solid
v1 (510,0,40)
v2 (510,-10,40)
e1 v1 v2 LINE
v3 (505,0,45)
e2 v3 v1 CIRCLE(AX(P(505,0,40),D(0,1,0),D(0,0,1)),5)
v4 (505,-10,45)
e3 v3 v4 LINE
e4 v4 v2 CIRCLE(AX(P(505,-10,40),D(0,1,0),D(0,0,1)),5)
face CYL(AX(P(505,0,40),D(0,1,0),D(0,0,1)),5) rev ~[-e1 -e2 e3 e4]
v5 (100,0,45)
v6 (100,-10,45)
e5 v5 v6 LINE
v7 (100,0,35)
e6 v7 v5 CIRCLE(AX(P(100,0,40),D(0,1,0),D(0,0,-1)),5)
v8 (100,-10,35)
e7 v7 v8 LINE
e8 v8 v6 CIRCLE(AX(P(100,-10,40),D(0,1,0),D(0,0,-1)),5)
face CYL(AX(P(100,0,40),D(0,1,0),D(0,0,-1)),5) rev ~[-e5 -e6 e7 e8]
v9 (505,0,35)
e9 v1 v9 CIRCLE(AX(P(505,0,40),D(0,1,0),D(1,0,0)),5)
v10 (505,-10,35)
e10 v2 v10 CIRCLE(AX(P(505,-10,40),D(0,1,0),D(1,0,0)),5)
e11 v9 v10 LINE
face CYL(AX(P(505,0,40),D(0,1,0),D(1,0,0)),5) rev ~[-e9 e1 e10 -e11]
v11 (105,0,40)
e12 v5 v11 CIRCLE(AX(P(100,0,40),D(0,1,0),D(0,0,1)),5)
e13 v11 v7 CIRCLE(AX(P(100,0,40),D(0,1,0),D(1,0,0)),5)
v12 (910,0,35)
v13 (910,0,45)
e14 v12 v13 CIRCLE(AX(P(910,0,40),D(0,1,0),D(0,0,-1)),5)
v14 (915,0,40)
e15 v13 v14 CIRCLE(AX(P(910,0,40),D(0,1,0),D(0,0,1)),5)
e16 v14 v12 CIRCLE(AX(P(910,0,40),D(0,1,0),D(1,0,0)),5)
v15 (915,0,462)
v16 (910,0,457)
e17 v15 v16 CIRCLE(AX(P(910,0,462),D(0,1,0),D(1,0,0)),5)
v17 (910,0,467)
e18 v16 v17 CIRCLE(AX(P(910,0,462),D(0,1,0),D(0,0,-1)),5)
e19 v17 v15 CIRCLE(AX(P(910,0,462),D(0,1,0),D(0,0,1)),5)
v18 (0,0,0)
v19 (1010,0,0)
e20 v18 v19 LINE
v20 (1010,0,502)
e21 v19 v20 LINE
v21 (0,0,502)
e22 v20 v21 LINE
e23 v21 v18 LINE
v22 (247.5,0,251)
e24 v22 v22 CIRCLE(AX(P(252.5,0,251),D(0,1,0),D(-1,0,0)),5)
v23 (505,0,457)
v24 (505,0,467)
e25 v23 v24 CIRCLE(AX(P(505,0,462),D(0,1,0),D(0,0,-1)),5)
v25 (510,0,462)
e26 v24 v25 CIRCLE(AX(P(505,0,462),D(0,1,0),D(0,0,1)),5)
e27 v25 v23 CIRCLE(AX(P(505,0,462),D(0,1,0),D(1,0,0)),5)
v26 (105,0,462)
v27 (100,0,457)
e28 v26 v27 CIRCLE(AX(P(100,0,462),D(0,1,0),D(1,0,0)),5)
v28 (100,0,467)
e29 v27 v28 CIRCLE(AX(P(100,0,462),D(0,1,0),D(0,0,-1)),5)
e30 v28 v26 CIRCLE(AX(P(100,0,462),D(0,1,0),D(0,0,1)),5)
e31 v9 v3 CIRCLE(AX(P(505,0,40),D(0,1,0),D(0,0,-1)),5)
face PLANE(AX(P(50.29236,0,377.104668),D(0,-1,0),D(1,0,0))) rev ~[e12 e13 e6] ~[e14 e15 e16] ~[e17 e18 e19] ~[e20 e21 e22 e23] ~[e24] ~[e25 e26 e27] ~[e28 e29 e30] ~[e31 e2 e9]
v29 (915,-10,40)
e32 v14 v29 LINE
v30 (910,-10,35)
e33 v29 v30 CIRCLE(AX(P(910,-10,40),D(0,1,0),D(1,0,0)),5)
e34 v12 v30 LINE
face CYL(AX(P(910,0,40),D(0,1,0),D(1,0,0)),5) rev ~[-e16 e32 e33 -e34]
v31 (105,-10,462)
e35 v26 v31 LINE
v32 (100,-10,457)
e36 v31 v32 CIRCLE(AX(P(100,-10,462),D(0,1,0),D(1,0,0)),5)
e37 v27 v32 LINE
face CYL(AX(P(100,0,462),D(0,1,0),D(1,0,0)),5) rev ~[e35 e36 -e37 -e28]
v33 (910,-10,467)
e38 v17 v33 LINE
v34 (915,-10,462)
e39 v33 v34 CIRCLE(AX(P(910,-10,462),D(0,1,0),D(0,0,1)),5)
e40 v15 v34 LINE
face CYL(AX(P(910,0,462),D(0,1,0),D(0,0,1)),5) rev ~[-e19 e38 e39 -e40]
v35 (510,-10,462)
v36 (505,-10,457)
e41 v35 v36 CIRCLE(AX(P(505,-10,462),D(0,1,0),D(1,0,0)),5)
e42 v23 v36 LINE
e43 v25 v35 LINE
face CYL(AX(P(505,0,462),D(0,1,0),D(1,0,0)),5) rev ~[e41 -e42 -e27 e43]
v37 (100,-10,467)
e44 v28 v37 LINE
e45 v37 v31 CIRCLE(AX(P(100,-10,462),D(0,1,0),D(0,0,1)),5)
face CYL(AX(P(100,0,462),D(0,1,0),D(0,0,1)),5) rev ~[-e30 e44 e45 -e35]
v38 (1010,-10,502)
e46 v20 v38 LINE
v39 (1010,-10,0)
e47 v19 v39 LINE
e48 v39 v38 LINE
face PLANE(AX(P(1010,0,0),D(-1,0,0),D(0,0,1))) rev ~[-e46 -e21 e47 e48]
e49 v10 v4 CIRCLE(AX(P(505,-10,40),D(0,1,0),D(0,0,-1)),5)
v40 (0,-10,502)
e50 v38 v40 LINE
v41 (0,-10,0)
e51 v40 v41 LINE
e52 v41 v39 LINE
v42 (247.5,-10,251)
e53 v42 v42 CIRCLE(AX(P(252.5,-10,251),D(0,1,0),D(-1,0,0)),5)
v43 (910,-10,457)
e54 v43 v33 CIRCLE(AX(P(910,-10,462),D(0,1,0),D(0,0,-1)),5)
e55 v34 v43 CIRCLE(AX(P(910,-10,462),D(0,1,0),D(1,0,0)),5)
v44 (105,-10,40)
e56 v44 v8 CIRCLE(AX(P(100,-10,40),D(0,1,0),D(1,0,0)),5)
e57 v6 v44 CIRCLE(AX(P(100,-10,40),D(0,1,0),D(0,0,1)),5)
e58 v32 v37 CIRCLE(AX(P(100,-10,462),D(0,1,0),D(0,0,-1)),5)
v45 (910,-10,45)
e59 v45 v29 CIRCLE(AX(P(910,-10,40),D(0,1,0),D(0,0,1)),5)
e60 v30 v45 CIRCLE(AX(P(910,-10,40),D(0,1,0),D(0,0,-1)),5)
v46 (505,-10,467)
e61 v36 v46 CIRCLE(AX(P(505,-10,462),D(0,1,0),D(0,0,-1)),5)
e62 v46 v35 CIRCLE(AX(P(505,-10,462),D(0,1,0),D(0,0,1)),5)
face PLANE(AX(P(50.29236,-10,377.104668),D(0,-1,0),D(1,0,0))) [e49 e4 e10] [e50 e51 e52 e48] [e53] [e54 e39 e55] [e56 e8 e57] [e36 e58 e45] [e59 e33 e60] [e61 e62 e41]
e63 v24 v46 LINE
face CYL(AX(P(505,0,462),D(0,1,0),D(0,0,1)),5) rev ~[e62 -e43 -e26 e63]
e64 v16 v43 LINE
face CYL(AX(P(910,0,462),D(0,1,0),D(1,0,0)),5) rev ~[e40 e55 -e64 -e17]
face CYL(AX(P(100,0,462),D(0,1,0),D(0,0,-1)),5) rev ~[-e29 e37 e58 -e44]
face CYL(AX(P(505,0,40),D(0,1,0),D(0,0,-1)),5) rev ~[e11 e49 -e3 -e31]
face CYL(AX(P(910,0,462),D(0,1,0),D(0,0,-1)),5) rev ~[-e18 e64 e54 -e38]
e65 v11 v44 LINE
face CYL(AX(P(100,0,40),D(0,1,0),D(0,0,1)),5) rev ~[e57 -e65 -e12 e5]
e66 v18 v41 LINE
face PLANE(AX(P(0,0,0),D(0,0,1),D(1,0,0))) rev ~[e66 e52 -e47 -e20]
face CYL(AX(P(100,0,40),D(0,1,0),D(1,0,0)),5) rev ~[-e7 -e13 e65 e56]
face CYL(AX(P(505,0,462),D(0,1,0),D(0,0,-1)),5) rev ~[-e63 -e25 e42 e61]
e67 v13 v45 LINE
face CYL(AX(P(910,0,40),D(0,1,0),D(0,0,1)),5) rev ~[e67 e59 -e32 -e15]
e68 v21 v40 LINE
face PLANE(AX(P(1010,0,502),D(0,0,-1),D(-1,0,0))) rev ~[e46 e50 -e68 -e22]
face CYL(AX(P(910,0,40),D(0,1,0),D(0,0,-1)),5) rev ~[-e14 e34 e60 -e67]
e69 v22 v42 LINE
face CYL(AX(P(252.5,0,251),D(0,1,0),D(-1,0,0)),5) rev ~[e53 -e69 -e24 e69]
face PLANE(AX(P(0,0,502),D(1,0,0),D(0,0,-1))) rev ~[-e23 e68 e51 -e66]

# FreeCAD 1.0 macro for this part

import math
import FreeCAD as App
import Part
import Sketcher
Q = App.Units.Quantity

doc = App.newDocument("Part")
body = doc.addObject("PartDesign::Body", "Body")

# Sketch on XZ plane
sketch1 = doc.addObject("Sketcher::SketchObject", "Sketch")
body.addObject(sketch1)
sketch1.AttachmentSupport = (doc.XZ_Plane, [""])
sketch1.MapMode = "FlatFace"
sketch1.addGeometry(Part.LineSegment(App.Vector(0, 0, 0), App.Vector(1010, 0, 0)), False)
sketch1.addGeometry(Part.LineSegment(App.Vector(1010, 0, 0), App.Vector(1010, 502, 0)), False)
sketch1.addGeometry(Part.LineSegment(App.Vector(1010, 502, 0), App.Vector(0, 502, 0)), False)
sketch1.addGeometry(Part.LineSegment(App.Vector(0, 502, 0), App.Vector(0, 0, 0)), False)
sketch1.addGeometry(Part.ArcOfCircle(Part.Circle(App.Vector(505, 462, 0), App.Vector(0, 0, 1), 5), math.radians(90), math.radians(270)), False)
sketch1.addGeometry(Part.ArcOfCircle(Part.Circle(App.Vector(505, 462, 0), App.Vector(0, 0, 1), 5), math.radians(0), math.radians(90)), False)
sketch1.addGeometry(Part.ArcOfCircle(Part.Circle(App.Vector(505, 462, 0), App.Vector(0, 0, 1), 5), math.radians(-90), math.radians(0)), False)
sketch1.addGeometry(Part.ArcOfCircle(Part.Circle(App.Vector(910, 462, 0), App.Vector(0, 0, 1), 5), math.radians(-90), math.radians(0)), False)
sketch1.addGeometry(Part.ArcOfCircle(Part.Circle(App.Vector(910, 462, 0), App.Vector(0, 0, 1), 5), math.radians(90), math.radians(270)), False)
sketch1.addGeometry(Part.ArcOfCircle(Part.Circle(App.Vector(910, 462, 0), App.Vector(0, 0, 1), 5), math.radians(0), math.radians(90)), False)
sketch1.addGeometry(Part.ArcOfCircle(Part.Circle(App.Vector(100, 40, 0), App.Vector(0, 0, 1), 5), math.radians(90), math.radians(270)), False)
sketch1.addGeometry(Part.ArcOfCircle(Part.Circle(App.Vector(100, 40, 0), App.Vector(0, 0, 1), 5), math.radians(0), math.radians(90)), False)
sketch1.addGeometry(Part.ArcOfCircle(Part.Circle(App.Vector(100, 40, 0), App.Vector(0, 0, 1), 5), math.radians(-90), math.radians(0)), False)
sketch1.addGeometry(Part.ArcOfCircle(Part.Circle(App.Vector(505, 40, 0), App.Vector(0, 0, 1), 5), math.radians(90), math.radians(270)), False)
sketch1.addGeometry(Part.ArcOfCircle(Part.Circle(App.Vector(505, 40, 0), App.Vector(0, 0, 1), 5), math.radians(0), math.radians(90)), False)
sketch1.addGeometry(Part.ArcOfCircle(Part.Circle(App.Vector(505, 40, 0), App.Vector(0, 0, 1), 5), math.radians(-90), math.radians(0)), False)
sketch1.addGeometry(Part.ArcOfCircle(Part.Circle(App.Vector(910, 40, 0), App.Vector(0, 0, 1), 5), math.radians(-90), math.radians(0)), False)
sketch1.addGeometry(Part.ArcOfCircle(Part.Circle(App.Vector(910, 40, 0), App.Vector(0, 0, 1), 5), math.radians(90), math.radians(270)), False)
sketch1.addGeometry(Part.ArcOfCircle(Part.Circle(App.Vector(910, 40, 0), App.Vector(0, 0, 1), 5), math.radians(0), math.radians(90)), False)
sketch1.addGeometry(Part.Circle(App.Vector(252.5, 251, 0), App.Vector(0, 0, 1), 5), False)
sketch1.addGeometry(Part.ArcOfCircle(Part.Circle(App.Vector(100, 462, 0), App.Vector(0, 0, 1), 5), math.radians(90), math.radians(270)), False)
sketch1.addGeometry(Part.ArcOfCircle(Part.Circle(App.Vector(100, 462, 0), App.Vector(0, 0, 1), 5), math.radians(0), math.radians(90)), False)
sketch1.addGeometry(Part.ArcOfCircle(Part.Circle(App.Vector(100, 462, 0), App.Vector(0, 0, 1), 5), math.radians(-90), math.radians(0)), False)
sketch1.addConstraint(Sketcher.Constraint("Coincident", 0, 2, 1, 1))
sketch1.addConstraint(Sketcher.Constraint("Coincident", 1, 2, 2, 1))
sketch1.addConstraint(Sketcher.Constraint("Coincident", 2, 2, 3, 1))
sketch1.addConstraint(Sketcher.Constraint("Coincident", 3, 2, 0, 1))
sketch1.addConstraint(Sketcher.Constraint("Tangent", 4, 1, 5, 2))
sketch1.addConstraint(Sketcher.Constraint("Tangent", 5, 1, 6, 2))
sketch1.addConstraint(Sketcher.Constraint("Tangent", 6, 1, 4, 2))
sketch1.addConstraint(Sketcher.Constraint("Tangent", 7, 1, 8, 2))
sketch1.addConstraint(Sketcher.Constraint("Tangent", 8, 1, 9, 2))
sketch1.addConstraint(Sketcher.Constraint("Tangent", 9, 1, 7, 2))
sketch1.addConstraint(Sketcher.Constraint("Tangent", 10, 1, 11, 2))
sketch1.addConstraint(Sketcher.Constraint("Tangent", 11, 1, 12, 2))
sketch1.addConstraint(Sketcher.Constraint("Tangent", 12, 1, 10, 2))
sketch1.addConstraint(Sketcher.Constraint("Tangent", 13, 1, 14, 2))
sketch1.addConstraint(Sketcher.Constraint("Tangent", 14, 1, 15, 2))
sketch1.addConstraint(Sketcher.Constraint("Tangent", 15, 1, 13, 2))
sketch1.addConstraint(Sketcher.Constraint("Tangent", 16, 1, 17, 2))
sketch1.addConstraint(Sketcher.Constraint("Tangent", 17, 1, 18, 2))
sketch1.addConstraint(Sketcher.Constraint("Tangent", 18, 1, 16, 2))
sketch1.addConstraint(Sketcher.Constraint("Tangent", 20, 1, 21, 2))
sketch1.addConstraint(Sketcher.Constraint("Tangent", 21, 1, 22, 2))
sketch1.addConstraint(Sketcher.Constraint("Tangent", 22, 1, 20, 2))
sketch1.addConstraint(Sketcher.Constraint("Horizontal", 0))
sketch1.addConstraint(Sketcher.Constraint("Vertical", 1))
sketch1.addConstraint(Sketcher.Constraint("Horizontal", 2))
sketch1.addConstraint(Sketcher.Constraint("Vertical", 3))
sketch1.addConstraint(Sketcher.Constraint("Coincident", 3, 2, -1, 1))
sketch1.addConstraint(Sketcher.Constraint("Equal", 6, 7))
sketch1.addConstraint(Sketcher.Constraint("Equal", 9, 10))
sketch1.addConstraint(Sketcher.Constraint("Equal", 12, 13))
sketch1.addConstraint(Sketcher.Constraint("Equal", 15, 16))
sketch1.addConstraint(Sketcher.Constraint("Equal", 18, 19))
sketch1.addConstraint(Sketcher.Constraint("Equal", 19, 20))
sketch1.addConstraint(Sketcher.Constraint("Horizontal", 6, 3, 7, 3))
sketch1.addConstraint(Sketcher.Constraint("Horizontal", 12, 3, 13, 3))
sketch1.addConstraint(Sketcher.Constraint("Horizontal", 15, 3, 16, 3))
sketch1.addConstraint(Sketcher.Constraint("Horizontal", 9, 3, 20, 3))
sketch1.addConstraint(Sketcher.Constraint("Horizontal", 22, 3, 5, 1))
sketch1.addConstraint(Sketcher.Constraint("Horizontal", 5, 1, 9, 1))
sketch1.addConstraint(Sketcher.Constraint("Horizontal", 18, 3, 11, 1))
sketch1.addConstraint(Sketcher.Constraint("Horizontal", 11, 1, 14, 1))
sketch1.addConstraint(Sketcher.Constraint("Horizontal", 14, 1, 18, 1))
sketch1.addConstraint(Sketcher.Constraint("Horizontal", 9, 1, 21, 1))
sketch1.addConstraint(Sketcher.Constraint("Vertical", 6, 3, 13, 3))
sketch1.addConstraint(Sketcher.Constraint("Vertical", 9, 3, 16, 3))
sketch1.addConstraint(Sketcher.Constraint("Vertical", 12, 3, 20, 3))
sketch1.addConstraint(Sketcher.Constraint("Vertical", 15, 3, 4, 1))
sketch1.addConstraint(Sketcher.Constraint("Vertical", 4, 1, 6, 1))
sketch1.addConstraint(Sketcher.Constraint("Vertical", 18, 3, 7, 1))
sketch1.addConstraint(Sketcher.Constraint("Vertical", 7, 1, 8, 1))
sketch1.addConstraint(Sketcher.Constraint("Vertical", 22, 3, 10, 1))
sketch1.addConstraint(Sketcher.Constraint("Vertical", 10, 1, 12, 1))
sketch1.addConstraint(Sketcher.Constraint("Vertical", 6, 1, 13, 1))
sketch1.addConstraint(Sketcher.Constraint("Vertical", 13, 1, 15, 1))
sketch1.addConstraint(Sketcher.Constraint("Vertical", 8, 1, 16, 1))
sketch1.addConstraint(Sketcher.Constraint("Vertical", 16, 1, 17, 1))
sketch1.addConstraint(Sketcher.Constraint("Vertical", 12, 1, 20, 1))
sketch1.addConstraint(Sketcher.Constraint("Vertical", 20, 1, 22, 1))
sketch1.addConstraint(Sketcher.Constraint("Diameter", 19, Q("10 mm")))
sketch1.addConstraint(Sketcher.Constraint("DistanceX", 0, 1, 0, 2, Q("1010 mm")))
sketch1.addConstraint(Sketcher.Constraint("DistanceY", 1, 1, 1, 2, Q("502 mm")))
sketch1.addConstraint(Sketcher.Constraint("DistanceX", -1, 1, 4, 3, Q("505 mm")))
sketch1.addConstraint(Sketcher.Constraint("DistanceY", -1, 1, 4, 3, Q("462 mm")))
sketch1.addConstraint(Sketcher.Constraint("DistanceX", -1, 1, 7, 3, Q("910 mm")))
sketch1.addConstraint(Sketcher.Constraint("DistanceX", -1, 1, 10, 3, Q("100 mm")))
sketch1.addConstraint(Sketcher.Constraint("DistanceY", -1, 1, 10, 3, Q("40 mm")))
sketch1.addConstraint(Sketcher.Constraint("DistanceY", -1, 1, 19, 3, Q("251 mm")))
sketch1.addConstraint(Sketcher.Constraint("DistanceX", -1, 1, 19, 3, Q("252.5 mm")))
pad1 = doc.addObject("PartDesign::Pad", "Pad")
body.addObject(pad1)
pad1.Profile = sketch1
pad1.Length = 10

doc.recompute()
